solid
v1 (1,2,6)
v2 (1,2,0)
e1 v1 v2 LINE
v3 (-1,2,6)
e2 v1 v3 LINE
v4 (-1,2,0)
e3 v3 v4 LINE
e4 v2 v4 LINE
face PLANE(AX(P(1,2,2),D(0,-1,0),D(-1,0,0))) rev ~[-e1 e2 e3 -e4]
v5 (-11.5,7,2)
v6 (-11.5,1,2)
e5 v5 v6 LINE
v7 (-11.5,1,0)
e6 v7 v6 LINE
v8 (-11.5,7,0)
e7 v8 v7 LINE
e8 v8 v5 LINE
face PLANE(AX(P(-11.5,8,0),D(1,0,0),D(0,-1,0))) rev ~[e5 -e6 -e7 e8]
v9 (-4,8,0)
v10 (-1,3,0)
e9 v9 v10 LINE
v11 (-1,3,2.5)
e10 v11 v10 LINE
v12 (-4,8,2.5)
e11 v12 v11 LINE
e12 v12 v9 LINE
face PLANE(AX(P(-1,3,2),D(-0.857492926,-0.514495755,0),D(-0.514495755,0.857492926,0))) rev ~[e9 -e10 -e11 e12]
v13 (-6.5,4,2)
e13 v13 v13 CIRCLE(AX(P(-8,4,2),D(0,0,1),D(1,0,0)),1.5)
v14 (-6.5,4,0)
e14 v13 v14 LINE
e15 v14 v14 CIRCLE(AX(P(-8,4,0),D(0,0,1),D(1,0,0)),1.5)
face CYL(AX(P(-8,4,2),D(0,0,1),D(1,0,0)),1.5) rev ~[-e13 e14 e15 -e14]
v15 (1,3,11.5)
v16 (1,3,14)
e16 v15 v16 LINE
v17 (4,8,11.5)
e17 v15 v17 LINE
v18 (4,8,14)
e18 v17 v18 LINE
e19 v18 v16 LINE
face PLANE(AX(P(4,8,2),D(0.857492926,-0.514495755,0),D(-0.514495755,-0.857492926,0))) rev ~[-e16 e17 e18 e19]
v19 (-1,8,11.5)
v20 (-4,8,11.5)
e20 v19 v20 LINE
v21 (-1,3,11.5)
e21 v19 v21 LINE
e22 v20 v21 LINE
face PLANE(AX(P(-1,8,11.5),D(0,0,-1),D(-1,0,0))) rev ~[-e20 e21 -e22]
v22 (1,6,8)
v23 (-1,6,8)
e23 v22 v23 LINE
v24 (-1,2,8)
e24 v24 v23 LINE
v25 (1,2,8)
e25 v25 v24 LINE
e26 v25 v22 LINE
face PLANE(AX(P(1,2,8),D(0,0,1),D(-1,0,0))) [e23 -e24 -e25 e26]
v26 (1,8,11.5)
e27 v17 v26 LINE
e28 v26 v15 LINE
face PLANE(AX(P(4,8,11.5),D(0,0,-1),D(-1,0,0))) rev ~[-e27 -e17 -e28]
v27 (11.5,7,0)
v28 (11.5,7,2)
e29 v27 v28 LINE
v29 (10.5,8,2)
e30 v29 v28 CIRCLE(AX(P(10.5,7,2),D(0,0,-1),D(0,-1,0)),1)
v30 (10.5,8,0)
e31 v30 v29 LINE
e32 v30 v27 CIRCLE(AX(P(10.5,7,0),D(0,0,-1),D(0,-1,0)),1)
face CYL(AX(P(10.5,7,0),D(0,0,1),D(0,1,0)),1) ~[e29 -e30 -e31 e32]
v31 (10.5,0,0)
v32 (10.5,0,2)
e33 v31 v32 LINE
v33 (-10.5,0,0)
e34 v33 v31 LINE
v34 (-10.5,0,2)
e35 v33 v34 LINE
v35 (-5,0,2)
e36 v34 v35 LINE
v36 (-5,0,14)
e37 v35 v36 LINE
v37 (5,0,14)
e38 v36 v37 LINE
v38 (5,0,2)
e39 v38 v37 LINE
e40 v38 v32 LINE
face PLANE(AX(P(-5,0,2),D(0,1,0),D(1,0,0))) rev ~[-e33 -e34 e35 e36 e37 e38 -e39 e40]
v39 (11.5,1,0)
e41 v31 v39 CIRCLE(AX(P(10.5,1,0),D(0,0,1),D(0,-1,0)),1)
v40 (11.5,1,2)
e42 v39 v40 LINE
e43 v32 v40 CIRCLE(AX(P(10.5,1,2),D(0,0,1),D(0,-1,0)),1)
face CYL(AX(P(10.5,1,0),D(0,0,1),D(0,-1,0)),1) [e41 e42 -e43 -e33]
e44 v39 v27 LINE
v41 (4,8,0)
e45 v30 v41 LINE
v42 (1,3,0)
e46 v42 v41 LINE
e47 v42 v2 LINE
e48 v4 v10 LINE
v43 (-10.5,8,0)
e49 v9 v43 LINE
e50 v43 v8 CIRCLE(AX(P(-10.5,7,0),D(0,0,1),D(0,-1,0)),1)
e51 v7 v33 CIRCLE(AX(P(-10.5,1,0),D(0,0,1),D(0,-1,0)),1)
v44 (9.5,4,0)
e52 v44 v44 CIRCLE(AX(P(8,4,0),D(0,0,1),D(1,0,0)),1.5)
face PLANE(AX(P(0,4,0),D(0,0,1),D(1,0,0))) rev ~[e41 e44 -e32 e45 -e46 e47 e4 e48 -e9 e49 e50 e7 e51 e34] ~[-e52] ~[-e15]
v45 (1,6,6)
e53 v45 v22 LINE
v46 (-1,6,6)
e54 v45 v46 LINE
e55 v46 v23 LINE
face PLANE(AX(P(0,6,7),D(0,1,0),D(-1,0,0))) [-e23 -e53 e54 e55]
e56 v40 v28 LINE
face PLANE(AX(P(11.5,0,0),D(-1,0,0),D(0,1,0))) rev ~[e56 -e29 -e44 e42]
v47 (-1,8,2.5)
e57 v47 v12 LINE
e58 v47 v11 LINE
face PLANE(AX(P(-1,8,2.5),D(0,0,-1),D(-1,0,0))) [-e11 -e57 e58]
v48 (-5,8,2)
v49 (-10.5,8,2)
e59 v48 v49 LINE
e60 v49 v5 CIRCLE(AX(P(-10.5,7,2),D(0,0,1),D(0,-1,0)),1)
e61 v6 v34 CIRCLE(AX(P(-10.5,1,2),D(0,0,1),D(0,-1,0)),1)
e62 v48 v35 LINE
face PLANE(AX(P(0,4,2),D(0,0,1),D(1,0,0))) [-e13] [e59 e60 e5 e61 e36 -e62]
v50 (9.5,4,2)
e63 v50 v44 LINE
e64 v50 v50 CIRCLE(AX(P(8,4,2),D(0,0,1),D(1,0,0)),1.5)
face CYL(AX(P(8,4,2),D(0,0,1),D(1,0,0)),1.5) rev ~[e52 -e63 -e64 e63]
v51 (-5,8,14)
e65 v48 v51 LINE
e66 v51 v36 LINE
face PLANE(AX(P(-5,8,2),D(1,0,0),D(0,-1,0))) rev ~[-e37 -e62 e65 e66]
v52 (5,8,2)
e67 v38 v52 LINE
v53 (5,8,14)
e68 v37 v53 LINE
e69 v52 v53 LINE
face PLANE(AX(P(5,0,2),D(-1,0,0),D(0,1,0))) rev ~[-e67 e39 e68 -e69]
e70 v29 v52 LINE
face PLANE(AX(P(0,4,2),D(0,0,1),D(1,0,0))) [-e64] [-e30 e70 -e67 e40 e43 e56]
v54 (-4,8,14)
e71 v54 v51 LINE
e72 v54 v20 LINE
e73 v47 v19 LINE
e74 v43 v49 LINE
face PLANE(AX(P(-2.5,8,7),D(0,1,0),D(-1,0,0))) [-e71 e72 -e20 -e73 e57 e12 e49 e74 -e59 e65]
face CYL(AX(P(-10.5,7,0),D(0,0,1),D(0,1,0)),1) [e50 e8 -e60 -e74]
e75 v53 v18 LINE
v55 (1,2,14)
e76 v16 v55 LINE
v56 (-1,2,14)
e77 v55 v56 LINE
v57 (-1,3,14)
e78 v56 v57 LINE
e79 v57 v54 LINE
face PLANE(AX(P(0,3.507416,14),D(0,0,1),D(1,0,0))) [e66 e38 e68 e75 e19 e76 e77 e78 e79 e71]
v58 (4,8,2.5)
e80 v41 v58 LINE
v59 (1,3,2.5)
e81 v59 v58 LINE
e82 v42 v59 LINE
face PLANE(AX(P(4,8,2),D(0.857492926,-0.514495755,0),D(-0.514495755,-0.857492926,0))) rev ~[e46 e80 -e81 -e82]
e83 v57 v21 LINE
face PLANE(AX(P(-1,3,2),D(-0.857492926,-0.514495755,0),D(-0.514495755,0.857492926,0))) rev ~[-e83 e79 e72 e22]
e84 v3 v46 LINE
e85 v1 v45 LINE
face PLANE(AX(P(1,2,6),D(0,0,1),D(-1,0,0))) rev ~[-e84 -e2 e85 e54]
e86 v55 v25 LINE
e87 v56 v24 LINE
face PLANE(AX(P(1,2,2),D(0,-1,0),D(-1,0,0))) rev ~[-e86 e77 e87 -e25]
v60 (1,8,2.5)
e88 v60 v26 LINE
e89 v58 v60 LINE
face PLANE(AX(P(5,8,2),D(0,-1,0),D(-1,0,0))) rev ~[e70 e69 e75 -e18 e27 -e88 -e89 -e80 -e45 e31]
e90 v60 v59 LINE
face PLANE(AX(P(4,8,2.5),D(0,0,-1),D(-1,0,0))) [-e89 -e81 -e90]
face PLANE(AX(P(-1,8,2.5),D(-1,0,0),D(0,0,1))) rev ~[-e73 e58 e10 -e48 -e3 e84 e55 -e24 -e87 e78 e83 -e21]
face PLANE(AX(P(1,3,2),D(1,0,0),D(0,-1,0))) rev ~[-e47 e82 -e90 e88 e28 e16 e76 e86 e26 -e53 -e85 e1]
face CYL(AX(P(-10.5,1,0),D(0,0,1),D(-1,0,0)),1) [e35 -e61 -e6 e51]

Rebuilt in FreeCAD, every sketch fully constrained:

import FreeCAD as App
import Part
import Sketcher
Q = App.Units.Quantity


def edges_at(feature, points):
    """Names of the edges that pass closest to the given points."""
    edges = feature.Shape.Edges
    near = lambda p: min(range(len(edges)), key=lambda i: edges[i].distToShape(Part.Vertex(*p))[0])
    return sorted({f"Edge{near(p) + 1}" for p in points})


def add_polygon(sketch, points):
    """Adds a closed chain of lines whose ends are joined by coincident constraints."""
    first, n = sketch.GeometryCount, len(points)
    for a, b in zip(points, points[1:] + points[:1]):
        sketch.addGeometry(Part.LineSegment(App.Vector(*a, 0), App.Vector(*b, 0)), False)
    for i in range(n):
        sketch.addConstraint(Sketcher.Constraint("Coincident", first + i, 2, first + (i + 1) % n, 1))

doc = App.newDocument("Part")
body = doc.addObject("PartDesign::Body", "Body")

sketch1 = body.newObject("Sketcher::SketchObject", "Sketch")
sketch1.AttachmentSupport = (doc.getObject("XY_Plane"), [""])
sketch1.MapMode = "FlatFace"
add_polygon(sketch1, [(-11.5, 8), (-11.5, 0), (11.5, 0), (11.5, 8), (1, 8), (1, 2), (-1, 2), (-1, 8)])
sketch1.addConstraint(Sketcher.Constraint("Vertical", 0))
sketch1.addConstraint(Sketcher.Constraint("Horizontal", 1))
sketch1.addConstraint(Sketcher.Constraint("Vertical", 2))
sketch1.addConstraint(Sketcher.Constraint("Horizontal", 3))
sketch1.addConstraint(Sketcher.Constraint("Vertical", 4))
sketch1.addConstraint(Sketcher.Constraint("Horizontal", 5))
sketch1.addConstraint(Sketcher.Constraint("Vertical", 6))
sketch1.addConstraint(Sketcher.Constraint("Horizontal", 7))
sketch1.addConstraint(Sketcher.Constraint("Symmetric", 0, 2, 1, 2, -1, 1))
sketch1.addConstraint(Sketcher.Constraint("Symmetric", 3, 2, 6, 2, -2))
sketch1.addConstraint(Sketcher.Constraint("DistanceX", 1, 1, 1, 2, Q("23 mm")))
sketch1.addConstraint(Sketcher.Constraint("DistanceX", 5, 2, 5, 1, Q("2 mm")))
sketch1.addConstraint(Sketcher.Constraint("DistanceY", 0, 2, 0, 1, Q("8 mm")))
sketch1.addConstraint(Sketcher.Constraint("DistanceY", 4, 2, 4, 1, Q("6 mm")))
pad1 = body.newObject("PartDesign::Pad", "Pad")
pad1.Profile = sketch1
pad1.Length = 2

sketch2 = body.newObject("Sketcher::SketchObject", "Sketch001")
sketch2.AttachmentSupport = (doc.getObject("XY_Plane"), [""])
sketch2.MapMode = "FlatFace"
sketch2.AttachmentOffset = App.Placement(App.Vector(0, 0, 2), App.Rotation())
add_polygon(sketch2, [(-1, 8), (-4, 8), (-1, 3)])
add_polygon(sketch2, [(1, 8), (1, 3), (4, 8)])
sketch2.addConstraint(Sketcher.Constraint("Horizontal", 0))
sketch2.addConstraint(Sketcher.Constraint("Vertical", 2))
sketch2.addConstraint(Sketcher.Constraint("Vertical", 3))
sketch2.addConstraint(Sketcher.Constraint("Horizontal", 5))
sketch2.addConstraint(Sketcher.Constraint("Symmetric", 1, 2, 3, 2, -2))
sketch2.addConstraint(Sketcher.Constraint("Symmetric", 0, 2, 4, 2, -2))
sketch2.addConstraint(Sketcher.Constraint("DistanceX", 0, 2, 0, 1, Q("3 mm")))
sketch2.addConstraint(Sketcher.Constraint("DistanceY", 2, 1, 2, 2, Q("5 mm")))
sketch2.addConstraint(Sketcher.Constraint("DistanceX", 0, 2, -1, 1, Q("4 mm")))
sketch2.addConstraint(Sketcher.Constraint("DistanceY", -1, 1, 0, 2, Q("8 mm")))
pocket1 = body.newObject("PartDesign::Pocket", "Pocket")
pocket1.Profile = sketch2
pocket1.Length = 25

sketch3 = body.newObject("Sketcher::SketchObject", "Sketch002")
sketch3.AttachmentSupport = (doc.getObject("XY_Plane"), [""])
sketch3.MapMode = "FlatFace"
sketch3.AttachmentOffset = App.Placement(App.Vector(0, 0, 2), App.Rotation())
sketch3.addGeometry(Part.Circle(App.Vector(-8, 4, 0), App.Vector(0, 0, 1), 1.5), False)
sketch3.addGeometry(Part.Circle(App.Vector(8, 4, 0), App.Vector(0, 0, 1), 1.5), False)
sketch3.addConstraint(Sketcher.Constraint("Equal", 0, 1))
sketch3.addConstraint(Sketcher.Constraint("Symmetric", 0, 3, 1, 3, -2))
sketch3.addConstraint(Sketcher.Constraint("Diameter", 0, Q("3 mm")))
sketch3.addConstraint(Sketcher.Constraint("DistanceX", 0, 3, -1, 1, Q("8 mm")))
sketch3.addConstraint(Sketcher.Constraint("DistanceY", -1, 1, 0, 3, Q("4 mm")))
pocket2 = body.newObject("PartDesign::Pocket", "Pocket001")
pocket2.Profile = sketch3
pocket2.Length = 25

sketch4 = body.newObject("Sketcher::SketchObject", "Sketch003")
sketch4.AttachmentSupport = (doc.getObject("XY_Plane"), [""])
sketch4.MapMode = "FlatFace"
sketch4.AttachmentOffset = App.Placement(App.Vector(0, 0, 2), App.Rotation())
add_polygon(sketch4, [(-4, 8), (-5, 8), (-5, 0), (5, 0), (5, 8), (4, 8), (1, 3), (1, 2), (-1, 2), (-1, 3)])
sketch4.addConstraint(Sketcher.Constraint("Horizontal", 0))
sketch4.addConstraint(Sketcher.Constraint("Vertical", 1))
sketch4.addConstraint(Sketcher.Constraint("Horizontal", 2))
sketch4.addConstraint(Sketcher.Constraint("Vertical", 3))
sketch4.addConstraint(Sketcher.Constraint("Horizontal", 4))
sketch4.addConstraint(Sketcher.Constraint("Vertical", 6))
sketch4.addConstraint(Sketcher.Constraint("Horizontal", 7))
sketch4.addConstraint(Sketcher.Constraint("Vertical", 8))
sketch4.addConstraint(Sketcher.Constraint("Symmetric", 1, 2, 2, 2, -1, 1))
sketch4.addConstraint(Sketcher.Constraint("Symmetric", 5, 2, 8, 2, -2))
sketch4.addConstraint(Sketcher.Constraint("Symmetric", 4, 2, 9, 2, -2))
sketch4.addConstraint(Sketcher.Constraint("Equal", 4, 6))
sketch4.addConstraint(Sketcher.Constraint("DistanceX", 0, 2, 0, 1, Q("1 mm")))
sketch4.addConstraint(Sketcher.Constraint("DistanceX", 2, 1, 2, 2, Q("10 mm")))
sketch4.addConstraint(Sketcher.Constraint("DistanceX", 7, 2, 7, 1, Q("2 mm")))
sketch4.addConstraint(Sketcher.Constraint("DistanceY", 1, 2, 1, 1, Q("8 mm")))
sketch4.addConstraint(Sketcher.Constraint("DistanceY", -1, 1, 5, 2, Q("3 mm")))
pad2 = body.newObject("PartDesign::Pad", "Pad001")
pad2.Profile = sketch4
pad2.Length = 12

sketch5 = body.newObject("Sketcher::SketchObject", "Sketch004")
sketch5.AttachmentSupport = (doc.getObject("XZ_Plane"), [""])
sketch5.MapMode = "FlatFace"
sketch5.AttachmentOffset = App.Placement(App.Vector(0, 0, -8), App.Rotation())
add_polygon(sketch5, [(-1, 11.5), (-1, 2.5), (-4, 2.5), (-4, 11.5)])
add_polygon(sketch5, [(4, 11.5), (4, 2.5), (1, 2.5), (1, 11.5)])
sketch5.addConstraint(Sketcher.Constraint("Vertical", 0))
sketch5.addConstraint(Sketcher.Constraint("Horizontal", 1))
sketch5.addConstraint(Sketcher.Constraint("Vertical", 2))
sketch5.addConstraint(Sketcher.Constraint("Horizontal", 3))
sketch5.addConstraint(Sketcher.Constraint("Vertical", 4))
sketch5.addConstraint(Sketcher.Constraint("Horizontal", 5))
sketch5.addConstraint(Sketcher.Constraint("Vertical", 6))
sketch5.addConstraint(Sketcher.Constraint("Horizontal", 7))
sketch5.addConstraint(Sketcher.Constraint("Symmetric", 1, 2, 4, 2, -2))
sketch5.addConstraint(Sketcher.Constraint("Symmetric", 3, 2, 6, 2, -2))
sketch5.addConstraint(Sketcher.Constraint("DistanceX", 1, 2, 1, 1, Q("3 mm")))
sketch5.addConstraint(Sketcher.Constraint("DistanceY", 0, 2, 0, 1, Q("9 mm")))
sketch5.addConstraint(Sketcher.Constraint("DistanceX", 0, 2, -1, 1, Q("1 mm")))
sketch5.addConstraint(Sketcher.Constraint("DistanceY", -1, 1, 0, 2, Q("2.5 mm")))
pad3 = body.newObject("PartDesign::Pad", "Pad002")
pad3.Profile = sketch5
pad3.Length = 8

sketch6 = body.newObject("Sketcher::SketchObject", "Sketch005")
sketch6.AttachmentSupport = (doc.getObject("XZ_Plane"), [""])
sketch6.MapMode = "FlatFace"
sketch6.AttachmentOffset = App.Placement(App.Vector(0, 0, -2), App.Rotation())
add_polygon(sketch6, [(1, 8), (1, 6), (-1, 6), (-1, 8)])
sketch6.addConstraint(Sketcher.Constraint("Vertical", 0))
sketch6.addConstraint(Sketcher.Constraint("Horizontal", 1))
sketch6.addConstraint(Sketcher.Constraint("Vertical", 2))
sketch6.addConstraint(Sketcher.Constraint("Horizontal", 3))
sketch6.addConstraint(Sketcher.Constraint("Equal", 3, 0))
sketch6.addConstraint(Sketcher.Constraint("DistanceX", 1, 2, 1, 1, Q("2 mm")))
sketch6.addConstraint(Sketcher.Constraint("DistanceX", -1, 1, 0, 2, Q("1 mm")))
sketch6.addConstraint(Sketcher.Constraint("DistanceY", -1, 1, 0, 2, Q("6 mm")))
pad4 = body.newObject("PartDesign::Pad", "Pad003")
pad4.Profile = sketch6
pad4.Length = 4
pad4.Reversed = True
doc.recompute()

fillet = body.newObject("PartDesign::Fillet", "Fillet")
fillet.Base = (pad4, edges_at(pad4, [
    (11.5, 8, 1),
    (11.5, 0, 1),
    (-11.5, 0, 1),
    (-11.5, 8, 1),
]))
fillet.Radius = 1

doc.recompute()
